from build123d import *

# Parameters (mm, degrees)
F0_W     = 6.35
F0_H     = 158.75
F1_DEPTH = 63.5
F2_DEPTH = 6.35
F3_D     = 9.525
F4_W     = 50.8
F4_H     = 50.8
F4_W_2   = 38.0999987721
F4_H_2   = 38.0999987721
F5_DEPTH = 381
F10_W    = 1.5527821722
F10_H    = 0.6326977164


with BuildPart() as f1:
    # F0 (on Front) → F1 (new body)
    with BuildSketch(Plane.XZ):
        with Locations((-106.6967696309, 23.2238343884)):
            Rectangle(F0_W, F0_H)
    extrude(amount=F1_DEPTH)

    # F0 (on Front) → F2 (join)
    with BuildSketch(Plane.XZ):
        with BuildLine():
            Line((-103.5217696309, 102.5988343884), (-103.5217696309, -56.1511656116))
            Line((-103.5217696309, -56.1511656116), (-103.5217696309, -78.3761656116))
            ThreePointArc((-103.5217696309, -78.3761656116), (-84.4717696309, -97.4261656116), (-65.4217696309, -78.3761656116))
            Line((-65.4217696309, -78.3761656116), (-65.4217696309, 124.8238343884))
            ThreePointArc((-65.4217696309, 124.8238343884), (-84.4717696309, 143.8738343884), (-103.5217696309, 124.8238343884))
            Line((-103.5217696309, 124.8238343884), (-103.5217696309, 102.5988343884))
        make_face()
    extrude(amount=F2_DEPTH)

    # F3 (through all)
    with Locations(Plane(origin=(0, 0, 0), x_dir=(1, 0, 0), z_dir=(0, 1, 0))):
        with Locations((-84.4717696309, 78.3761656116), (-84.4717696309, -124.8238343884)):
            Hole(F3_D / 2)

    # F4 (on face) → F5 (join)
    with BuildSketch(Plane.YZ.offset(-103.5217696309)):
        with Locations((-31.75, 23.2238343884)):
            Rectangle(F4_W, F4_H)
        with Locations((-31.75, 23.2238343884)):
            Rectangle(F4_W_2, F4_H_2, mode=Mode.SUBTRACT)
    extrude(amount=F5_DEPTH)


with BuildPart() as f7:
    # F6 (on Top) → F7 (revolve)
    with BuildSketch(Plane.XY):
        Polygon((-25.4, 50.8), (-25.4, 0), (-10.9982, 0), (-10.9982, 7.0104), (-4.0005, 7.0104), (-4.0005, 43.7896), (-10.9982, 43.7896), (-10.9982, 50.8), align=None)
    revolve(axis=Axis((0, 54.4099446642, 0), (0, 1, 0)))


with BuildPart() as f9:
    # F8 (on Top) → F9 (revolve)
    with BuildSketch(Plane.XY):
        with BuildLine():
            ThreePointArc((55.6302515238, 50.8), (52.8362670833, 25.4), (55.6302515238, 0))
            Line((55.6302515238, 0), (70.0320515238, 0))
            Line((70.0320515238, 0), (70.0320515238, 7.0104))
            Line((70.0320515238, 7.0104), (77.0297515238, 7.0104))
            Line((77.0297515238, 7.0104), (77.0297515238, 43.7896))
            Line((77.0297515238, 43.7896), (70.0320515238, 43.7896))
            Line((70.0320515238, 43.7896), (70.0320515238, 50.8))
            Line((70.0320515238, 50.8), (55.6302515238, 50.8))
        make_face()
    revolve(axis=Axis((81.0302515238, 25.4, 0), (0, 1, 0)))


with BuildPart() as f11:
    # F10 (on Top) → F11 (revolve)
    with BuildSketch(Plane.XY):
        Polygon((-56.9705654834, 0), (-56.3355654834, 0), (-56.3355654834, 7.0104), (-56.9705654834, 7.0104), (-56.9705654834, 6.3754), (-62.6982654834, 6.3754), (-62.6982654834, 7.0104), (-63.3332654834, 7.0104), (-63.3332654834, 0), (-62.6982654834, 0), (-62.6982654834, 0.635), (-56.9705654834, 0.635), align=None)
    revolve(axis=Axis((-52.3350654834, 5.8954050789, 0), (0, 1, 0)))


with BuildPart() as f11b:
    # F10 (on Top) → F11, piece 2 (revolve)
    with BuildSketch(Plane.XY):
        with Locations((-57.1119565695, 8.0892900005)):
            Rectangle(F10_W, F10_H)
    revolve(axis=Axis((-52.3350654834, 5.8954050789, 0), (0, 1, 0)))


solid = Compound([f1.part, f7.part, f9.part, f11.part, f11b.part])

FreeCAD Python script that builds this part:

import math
import FreeCAD as App
import Part
import Sketcher

V = App.Vector
Q = App.Units.Quantity

doc = App.newDocument("Part")
body = doc.addObject("PartDesign::Body", "Body")

# Sketch on XZ plane
sketch1 = body.newObject("Sketcher::SketchObject", "Sketch")
sketch1.AttachmentSupport = (doc.getObject("XZ_Plane"), [""])
sketch1.MapMode = "FlatFace"
sketch1.addGeometry(Part.LineSegment(V(-110, 103, 0), V(-110, -56, 0)), False)
sketch1.addGeometry(Part.LineSegment(V(-110, -56, 0), V(-104, -56, 0)), False)
sketch1.addGeometry(Part.LineSegment(V(-104, -56, 0), V(-104, 103, 0)), False)
sketch1.addGeometry(Part.LineSegment(V(-104, 103, 0), V(-110, 103, 0)), False)
sketch1.addConstraint(Sketcher.Constraint("Coincident", 0, 2, 1, 1))
sketch1.addConstraint(Sketcher.Constraint("Coincident", 1, 2, 2, 1))
sketch1.addConstraint(Sketcher.Constraint("Coincident", 2, 2, 3, 1))
sketch1.addConstraint(Sketcher.Constraint("Coincident", 3, 2, 0, 1))
sketch1.addConstraint(Sketcher.Constraint("Vertical", 0))
sketch1.addConstraint(Sketcher.Constraint("Horizontal", 1))
sketch1.addConstraint(Sketcher.Constraint("Vertical", 2))
sketch1.addConstraint(Sketcher.Constraint("Horizontal", 3))
sketch1.addConstraint(Sketcher.Constraint("DistanceX", 1, 1, 1, 2, Q("0.25 in")))
sketch1.addConstraint(Sketcher.Constraint("DistanceY", 0, 2, 0, 1, Q("6.25 in")))
sketch1.addConstraint(Sketcher.Constraint("DistanceX", 0, 2, -1, 1, Q("109.87177 mm")))
sketch1.addConstraint(Sketcher.Constraint("DistanceY", 0, 2, -1, 1, Q("56.151166 mm")))
pad1 = body.newObject("PartDesign::Pad", "Pad")
pad1.Profile = sketch1
pad1.Length = Q("2.5 in")

# Sketch on XZ plane
sketch2 = body.newObject("Sketcher::SketchObject", "Sketch001")
sketch2.AttachmentSupport = (doc.getObject("XZ_Plane"), [""])
sketch2.MapMode = "FlatFace"
sketch2.addGeometry(Part.ArcOfCircle(Part.Circle(V(-84, -78, 0), V(0, 0, 1), 19), math.radians(180), math.radians(360)), False)
sketch2.addGeometry(Part.LineSegment(V(-65, -78, 0), V(-65, 125, 0)), False)
sketch2.addGeometry(Part.ArcOfCircle(Part.Circle(V(-84, 125, 0), V(0, 0, 1), 19), math.radians(0), math.radians(180)), False)
sketch2.addGeometry(Part.LineSegment(V(-104, 125, 0), V(-104, -78, 0)), False)
sketch2.addConstraint(Sketcher.Constraint("Tangent", 0, 2, 1, 1))
sketch2.addConstraint(Sketcher.Constraint("Tangent", 1, 2, 2, 1))
sketch2.addConstraint(Sketcher.Constraint("Tangent", 2, 2, 3, 1))
sketch2.addConstraint(Sketcher.Constraint("Tangent", 3, 2, 0, 1))
sketch2.addConstraint(Sketcher.Constraint("Vertical", 1))
sketch2.addConstraint(Sketcher.Constraint("Vertical", 3))
sketch2.addConstraint(Sketcher.Constraint("DistanceY", 1, 1, 1, 2, Q("8 in")))
sketch2.addConstraint(Sketcher.Constraint("Radius", 0, Q("0.75 in")))
sketch2.addConstraint(Sketcher.Constraint("DistanceX", 0, 3, -1, 1, Q("84.47177 mm")))
sketch2.addConstraint(Sketcher.Constraint("DistanceY", 0, 3, -1, 1, Q("78.376166 mm")))
pad2 = body.newObject("PartDesign::Pad", "Pad001")
pad2.Profile = sketch2
pad2.Length = Q("0.25 in")

# Sketch on XZ plane
sketch3 = body.newObject("Sketcher::SketchObject", "Sketch002")
sketch3.AttachmentSupport = (doc.getObject("XZ_Plane"), [""])
sketch3.MapMode = "FlatFace"
sketch3.addGeometry(Part.Circle(V(-84.5, -78.4, 0), V(0, 0, 1), 4.8), False)
sketch3.addGeometry(Part.Circle(V(-84.5, 124.8, 0), V(0, 0, 1), 4.8), False)
sketch3.addConstraint(Sketcher.Constraint("Equal", 0, 1))
sketch3.addConstraint(Sketcher.Constraint("Vertical", 0, 3, 1, 3))
sketch3.addConstraint(Sketcher.Constraint("Diameter", 0, Q("0.375 in")))
sketch3.addConstraint(Sketcher.Constraint("DistanceY", 0, 3, 1, 3, Q("8 in")))
sketch3.addConstraint(Sketcher.Constraint("DistanceX", 0, 3, -1, 1, Q("84.47177 mm")))
sketch3.addConstraint(Sketcher.Constraint("DistanceY", 0, 3, -1, 1, Q("78.376166 mm")))
doc.recompute()
hole = body.newObject("PartDesign::Hole", "Hole")
hole.Profile = sketch3
hole.ThreadType = "None"
hole.Diameter = Q("0.375 in")
hole.DepthType = "ThroughAll"
hole.Reversed = True

# Sketch on YZ plane
sketch4 = body.newObject("Sketcher::SketchObject", "Sketch003")
sketch4.AttachmentSupport = (doc.getObject("YZ_Plane"), [""])
sketch4.MapMode = "FlatFace"
sketch4.AttachmentOffset = App.Placement(V(0, 0, -103.52177), App.Rotation())
sketch4.addGeometry(Part.LineSegment(V(-57, 49, 0), V(-57, -2, 0)), False)
sketch4.addGeometry(Part.LineSegment(V(-57, -2, 0), V(-6, -2, 0)), False)
sketch4.addGeometry(Part.LineSegment(V(-6, -2, 0), V(-6, 49, 0)), False)
sketch4.addGeometry(Part.LineSegment(V(-6, 49, 0), V(-57, 49, 0)), False)
sketch4.addGeometry(Part.LineSegment(V(-13, 4, 0), V(-51, 4, 0)), False)
sketch4.addGeometry(Part.LineSegment(V(-51, 4, 0), V(-51, 42, 0)), False)
sketch4.addGeometry(Part.LineSegment(V(-51, 42, 0), V(-13, 42, 0)), False)
sketch4.addGeometry(Part.LineSegment(V(-13, 42, 0), V(-13, 4, 0)), False)
sketch4.addConstraint(Sketcher.Constraint("Coincident", 0, 2, 1, 1))
sketch4.addConstraint(Sketcher.Constraint("Coincident", 1, 2, 2, 1))
sketch4.addConstraint(Sketcher.Constraint("Coincident", 2, 2, 3, 1))
sketch4.addConstraint(Sketcher.Constraint("Coincident", 3, 2, 0, 1))
sketch4.addConstraint(Sketcher.Constraint("Coincident", 4, 2, 5, 1))
sketch4.addConstraint(Sketcher.Constraint("Coincident", 5, 2, 6, 1))
sketch4.addConstraint(Sketcher.Constraint("Coincident", 6, 2, 7, 1))
sketch4.addConstraint(Sketcher.Constraint("Coincident", 7, 2, 4, 1))
sketch4.addConstraint(Sketcher.Constraint("Vertical", 0))
sketch4.addConstraint(Sketcher.Constraint("Horizontal", 1))
sketch4.addConstraint(Sketcher.Constraint("Vertical", 2))
sketch4.addConstraint(Sketcher.Constraint("Horizontal", 3))
sketch4.addConstraint(Sketcher.Constraint("Horizontal", 4))
sketch4.addConstraint(Sketcher.Constraint("Vertical", 5))
sketch4.addConstraint(Sketcher.Constraint("Horizontal", 6))
sketch4.addConstraint(Sketcher.Constraint("Vertical", 7))
sketch4.addConstraint(Sketcher.Constraint("Equal", 3, 0))
sketch4.addConstraint(Sketcher.Constraint("Equal", 6, 5))
sketch4.addConstraint(Sketcher.Constraint("DistanceX", 1, 1, 1, 2, Q("2 in")))
sketch4.addConstraint(Sketcher.Constraint("DistanceX", 4, 2, 4, 1, Q("1.5 in")))
sketch4.addConstraint(Sketcher.Constraint("DistanceX", 4, 2, -1, 1, Q("2 in")))
sketch4.addConstraint(Sketcher.Constraint("DistanceX", 0, 2, -1, 1, Q("2.25 in")))
sketch4.addConstraint(Sketcher.Constraint("DistanceY", 0, 2, 4, 2, Q("0.25 in")))
sketch4.addConstraint(Sketcher.Constraint("DistanceY", 0, 2, -1, 1, Q("2.176166 mm")))
pad3 = body.newObject("PartDesign::Pad", "Pad002")
pad3.Profile = sketch4
pad3.Length = Q("15 in")
body2 = doc.addObject("PartDesign::Body", "Body001")

# Sketch on XY plane
sketch5 = body2.newObject("Sketcher::SketchObject", "Sketch004")
sketch5.AttachmentSupport = (doc.getObject("XY_Plane001"), [""])
sketch5.MapMode = "FlatFace"
sketch5.addGeometry(Part.LineSegment(V(-25, 51, 0), V(-25, 0, 0)), False)
sketch5.addGeometry(Part.LineSegment(V(-25, 0, 0), V(-11, 0, 0)), False)
sketch5.addGeometry(Part.LineSegment(V(-11, 0, 0), V(-11, 7, 0)), False)
sketch5.addGeometry(Part.LineSegment(V(-11, 7, 0), V(-4, 7, 0)), False)
sketch5.addGeometry(Part.LineSegment(V(-4, 7, 0), V(-4, 44, 0)), False)
sketch5.addGeometry(Part.LineSegment(V(-4, 44, 0), V(-11, 44, 0)), False)
sketch5.addGeometry(Part.LineSegment(V(-11, 44, 0), V(-11, 51, 0)), False)
sketch5.addGeometry(Part.LineSegment(V(-11, 51, 0), V(-25, 51, 0)), False)
sketch5.addConstraint(Sketcher.Constraint("Coincident", 0, 2, 1, 1))
sketch5.addConstraint(Sketcher.Constraint("Coincident", 1, 2, 2, 1))
sketch5.addConstraint(Sketcher.Constraint("Coincident", 2, 2, 3, 1))
sketch5.addConstraint(Sketcher.Constraint("Coincident", 3, 2, 4, 1))
sketch5.addConstraint(Sketcher.Constraint("Coincident", 4, 2, 5, 1))
sketch5.addConstraint(Sketcher.Constraint("Coincident", 5, 2, 6, 1))
sketch5.addConstraint(Sketcher.Constraint("Coincident", 6, 2, 7, 1))
sketch5.addConstraint(Sketcher.Constraint("Coincident", 7, 2, 0, 1))
sketch5.addConstraint(Sketcher.Constraint("Vertical", 0))
sketch5.addConstraint(Sketcher.Constraint("Horizontal", 1))
sketch5.addConstraint(Sketcher.Constraint("Vertical", 2))
sketch5.addConstraint(Sketcher.Constraint("Horizontal", 3))
sketch5.addConstraint(Sketcher.Constraint("Vertical", 4))
sketch5.addConstraint(Sketcher.Constraint("Horizontal", 5))
sketch5.addConstraint(Sketcher.Constraint("Vertical", 6))
sketch5.addConstraint(Sketcher.Constraint("Horizontal", 7))
sketch5.addConstraint(Sketcher.Constraint("PointOnObject", 0, 2, -1))
sketch5.addConstraint(Sketcher.Constraint("Vertical", 2, 2, 5, 2))
sketch5.addConstraint(Sketcher.Constraint("Equal", 2, 6))
sketch5.addConstraint(Sketcher.Constraint("DistanceY", 0, 2, 0, 1, Q("2 in")))
sketch5.addConstraint(Sketcher.Constraint("DistanceX", 0, 2, -1, 1, Q("1 in")))
sketch5.addConstraint(Sketcher.Constraint("DistanceX", 1, 1, 1, 2, Q("0.567 in")))
sketch5.addConstraint(Sketcher.Constraint("DistanceY", 2, 1, 2, 2, Q("0.276 in")))
sketch5.addConstraint(Sketcher.Constraint("DistanceX", 3, 1, 3, 2, Q("0.2755 in")))
revolution = body2.newObject("PartDesign::Revolution", "Revolution")
revolution.Profile = sketch5
revolution.ReferenceAxis = (sketch5, ["V_Axis"])
revolution.Angle = 360
body3 = doc.addObject("PartDesign::Body", "Body002")

# Sketch on XY plane
sketch6 = body3.newObject("Sketcher::SketchObject", "Sketch005")
sketch6.AttachmentSupport = (doc.getObject("XY_Plane002"), [""])
sketch6.MapMode = "FlatFace"
sketch6.addGeometry(Part.ArcOfCircle(Part.Circle(V(170, 25, 0), V(0, 0, 1), 117), math.radians(167), math.radians(193)), False)
sketch6.addGeometry(Part.LineSegment(V(56, 0, 0), V(70, 0, 0)), False)
sketch6.addGeometry(Part.LineSegment(V(70, 0, 0), V(70, 7, 0)), False)
sketch6.addGeometry(Part.LineSegment(V(70, 7, 0), V(77, 7, 0)), False)
sketch6.addGeometry(Part.LineSegment(V(77, 7, 0), V(77, 44, 0)), False)
sketch6.addGeometry(Part.LineSegment(V(77, 44, 0), V(70, 44, 0)), False)
sketch6.addGeometry(Part.LineSegment(V(70, 44, 0), V(70, 51, 0)), False)
sketch6.addGeometry(Part.LineSegment(V(70, 51, 0), V(56, 51, 0)), False)
sketch6.addGeometry(Part.LineSegment(V(81, 0, 0), V(81, 51, 0)), True)  # axis
sketch6.addConstraint(Sketcher.Constraint("Coincident", 0, 2, 1, 1))
sketch6.addConstraint(Sketcher.Constraint("Coincident", 1, 2, 2, 1))
sketch6.addConstraint(Sketcher.Constraint("Coincident", 2, 2, 3, 1))
sketch6.addConstraint(Sketcher.Constraint("Coincident", 3, 2, 4, 1))
sketch6.addConstraint(Sketcher.Constraint("Coincident", 4, 2, 5, 1))
sketch6.addConstraint(Sketcher.Constraint("Coincident", 5, 2, 6, 1))
sketch6.addConstraint(Sketcher.Constraint("Coincident", 6, 2, 7, 1))
sketch6.addConstraint(Sketcher.Constraint("Coincident", 7, 2, 0, 1))
sketch6.addConstraint(Sketcher.Constraint("Horizontal", 1))
sketch6.addConstraint(Sketcher.Constraint("Vertical", 2))
sketch6.addConstraint(Sketcher.Constraint("Horizontal", 3))
sketch6.addConstraint(Sketcher.Constraint("Vertical", 4))
sketch6.addConstraint(Sketcher.Constraint("Horizontal", 5))
sketch6.addConstraint(Sketcher.Constraint("Vertical", 6))
sketch6.addConstraint(Sketcher.Constraint("Horizontal", 7))
sketch6.addConstraint(Sketcher.Constraint("Vertical", 8))
sketch6.addConstraint(Sketcher.Constraint("PointOnObject", 0, 2, -1))
sketch6.addConstraint(Sketcher.Constraint("PointOnObject", 8, 1, -1))
sketch6.addConstraint(Sketcher.Constraint("Horizontal", 7, 2, 8, 2))
sketch6.addConstraint(Sketcher.Constraint("Vertical", 2, 2, 5, 2))
sketch6.addConstraint(Sketcher.Constraint("Vertical", 0, 2, 7, 2))
sketch6.addConstraint(Sketcher.Constraint("Equal", 2, 6))
sketch6.addConstraint(Sketcher.Constraint("DistanceY", 8, 1, 8, 2, Q("2 in")))
sketch6.addConstraint(Sketcher.Constraint("DistanceX", 0, 2, 8, 1, Q("1 in")))
sketch6.addConstraint(Sketcher.Constraint("DistanceX", 1, 1, 1, 2, Q("0.567 in")))
sketch6.addConstraint(Sketcher.Constraint("DistanceY", 2, 1, 2, 2, Q("0.276 in")))
sketch6.addConstraint(Sketcher.Constraint("DistanceX", 3, 1, 3, 2, Q("0.2755 in")))
sketch6.addConstraint(Sketcher.Constraint("Radius", 0, Q("116.852181 mm")))
sketch6.addConstraint(Sketcher.Constraint("DistanceX", -1, 1, 0, 2, Q("55.630252 mm")))
revolution2 = body3.newObject("PartDesign::Revolution", "Revolution001")
revolution2.Profile = sketch6
revolution2.ReferenceAxis = (sketch6, ["Axis0"])
revolution2.Angle = 360
body4 = doc.addObject("PartDesign::Body", "Body003")

# Sketch on XY plane
sketch7 = body4.newObject("Sketcher::SketchObject", "Sketch006")
sketch7.AttachmentSupport = (doc.getObject("XY_Plane003"), [""])
sketch7.MapMode = "FlatFace"
sketch7.addGeometry(Part.LineSegment(V(-57, 0, 0), V(-56.3, 0, 0)), False)
sketch7.addGeometry(Part.LineSegment(V(-56.3, 0, 0), V(-56.3, 7, 0)), False)
sketch7.addGeometry(Part.LineSegment(V(-56.3, 7, 0), V(-57, 7, 0)), False)
sketch7.addGeometry(Part.LineSegment(V(-57, 7, 0), V(-57, 6.4, 0)), False)
sketch7.addGeometry(Part.LineSegment(V(-57, 6.4, 0), V(-62.7, 6.4, 0)), False)
sketch7.addGeometry(Part.LineSegment(V(-62.7, 6.4, 0), V(-62.7, 7, 0)), False)
sketch7.addGeometry(Part.LineSegment(V(-62.7, 7, 0), V(-63.3, 7, 0)), False)
sketch7.addGeometry(Part.LineSegment(V(-63.3, 7, 0), V(-63.3, 0, 0)), False)
sketch7.addGeometry(Part.LineSegment(V(-63.3, 0, 0), V(-62.7, 0, 0)), False)
sketch7.addGeometry(Part.LineSegment(V(-62.7, 0, 0), V(-62.7, 0.6, 0)), False)
sketch7.addGeometry(Part.LineSegment(V(-62.7, 0.6, 0), V(-57, 0.6, 0)), False)
sketch7.addGeometry(Part.LineSegment(V(-57, 0.6, 0), V(-57, 0, 0)), False)
sketch7.addGeometry(Part.LineSegment(V(-52.3, 0, 0), V(-52.3, 7, 0)), True)  # axis
sketch7.addConstraint(Sketcher.Constraint("Coincident", 0, 2, 1, 1))
sketch7.addConstraint(Sketcher.Constraint("Coincident", 1, 2, 2, 1))
sketch7.addConstraint(Sketcher.Constraint("Coincident", 2, 2, 3, 1))
sketch7.addConstraint(Sketcher.Constraint("Coincident", 3, 2, 4, 1))
sketch7.addConstraint(Sketcher.Constraint("Coincident", 4, 2, 5, 1))
sketch7.addConstraint(Sketcher.Constraint("Coincident", 5, 2, 6, 1))
sketch7.addConstraint(Sketcher.Constraint("Coincident", 6, 2, 7, 1))
sketch7.addConstraint(Sketcher.Constraint("Coincident", 7, 2, 8, 1))
sketch7.addConstraint(Sketcher.Constraint("Coincident", 8, 2, 9, 1))
sketch7.addConstraint(Sketcher.Constraint("Coincident", 9, 2, 10, 1))
sketch7.addConstraint(Sketcher.Constraint("Coincident", 10, 2, 11, 1))
sketch7.addConstraint(Sketcher.Constraint("Coincident", 11, 2, 0, 1))
sketch7.addConstraint(Sketcher.Constraint("Horizontal", 0))
sketch7.addConstraint(Sketcher.Constraint("Vertical", 1))
sketch7.addConstraint(Sketcher.Constraint("Horizontal", 2))
sketch7.addConstraint(Sketcher.Constraint("Vertical", 3))
sketch7.addConstraint(Sketcher.Constraint("Horizontal", 4))
sketch7.addConstraint(Sketcher.Constraint("Vertical", 5))
sketch7.addConstraint(Sketcher.Constraint("Horizontal", 6))
sketch7.addConstraint(Sketcher.Constraint("Vertical", 7))
sketch7.addConstraint(Sketcher.Constraint("Horizontal", 8))
sketch7.addConstraint(Sketcher.Constraint("Vertical", 9))
sketch7.addConstraint(Sketcher.Constraint("Horizontal", 10))
sketch7.addConstraint(Sketcher.Constraint("Vertical", 11))
sketch7.addConstraint(Sketcher.Constraint("Vertical", 12))
sketch7.addConstraint(Sketcher.Constraint("PointOnObject", 0, 2, -1))
sketch7.addConstraint(Sketcher.Constraint("PointOnObject", 7, 2, -1))
sketch7.addConstraint(Sketcher.Constraint("PointOnObject", 12, 1, -1))
sketch7.addConstraint(Sketcher.Constraint("Horizontal", 2, 2, 5, 2))
sketch7.addConstraint(Sketcher.Constraint("Horizontal", 6, 2, 12, 2))
sketch7.addConstraint(Sketcher.Constraint("Vertical", 5, 2, 8, 2))
sketch7.addConstraint(Sketcher.Constraint("Vertical", 3, 2, 10, 2))
sketch7.addConstraint(Sketcher.Constraint("Equal", 2, 6))
sketch7.addConstraint(Sketcher.Constraint("Equal", 8, 3))
sketch7.addConstraint(Sketcher.Constraint("Equal", 5, 9))
sketch7.addConstraint(Sketcher.Constraint("DistanceX", 0, 1, 0, 2, Q("0.025 in")))
sketch7.addConstraint(Sketcher.Constraint("DistanceY", 1, 1, 1, 2, Q("0.276 in")))
sketch7.addConstraint(Sketcher.Constraint("DistanceX", 4, 2, 4, 1, Q("0.2255 in")))
sketch7.addConstraint(Sketcher.Constraint("DistanceX", 0, 2, 12, 1, Q("0.1575 in")))
sketch7.addConstraint(Sketcher.Constraint("DistanceX", 0, 2, -1, 1, Q("56.335565 mm")))
revolution3 = body4.newObject("PartDesign::Revolution", "Revolution002")
revolution3.Profile = sketch7
revolution3.ReferenceAxis = (sketch7, ["Axis0"])
revolution3.Angle = 360
body5 = doc.addObject("PartDesign::Body", "Body004")

# Sketch on XY plane
sketch8 = body5.newObject("Sketcher::SketchObject", "Sketch007")
sketch8.AttachmentSupport = (doc.getObject("XY_Plane004"), [""])
sketch8.MapMode = "FlatFace"
sketch8.addGeometry(Part.LineSegment(V(-57.9, 8.4, 0), V(-57.9, 7.8, 0)), False)
sketch8.addGeometry(Part.LineSegment(V(-57.9, 7.8, 0), V(-56.3, 7.8, 0)), False)
sketch8.addGeometry(Part.LineSegment(V(-56.3, 7.8, 0), V(-56.3, 8.4, 0)), False)
sketch8.addGeometry(Part.LineSegment(V(-56.3, 8.4, 0), V(-57.9, 8.4, 0)), False)
sketch8.addGeometry(Part.LineSegment(V(-52.3, 7.8, 0), V(-52.3, 8.4, 0)), True)  # axis
sketch8.addConstraint(Sketcher.Constraint("Coincident", 0, 2, 1, 1))
sketch8.addConstraint(Sketcher.Constraint("Coincident", 1, 2, 2, 1))
sketch8.addConstraint(Sketcher.Constraint("Coincident", 2, 2, 3, 1))
sketch8.addConstraint(Sketcher.Constraint("Coincident", 3, 2, 0, 1))
sketch8.addConstraint(Sketcher.Constraint("Vertical", 0))
sketch8.addConstraint(Sketcher.Constraint("Horizontal", 1))
sketch8.addConstraint(Sketcher.Constraint("Vertical", 2))
sketch8.addConstraint(Sketcher.Constraint("Horizontal", 3))
sketch8.addConstraint(Sketcher.Constraint("Vertical", 4))
sketch8.addConstraint(Sketcher.Constraint("Horizontal", 1, 2, 4, 1))
sketch8.addConstraint(Sketcher.Constraint("Horizontal", 3, 2, 4, 2))
sketch8.addConstraint(Sketcher.Constraint("DistanceX", 1, 2, 4, 1, Q("0.1575 in")))
sketch8.addConstraint(Sketcher.Constraint("DistanceX", 1, 1, 1, 2, Q("1.552782 mm")))
sketch8.addConstraint(Sketcher.Constraint("DistanceY", 0, 2, 0, 1, Q("0.632698 mm")))
sketch8.addConstraint(Sketcher.Constraint("DistanceY", -1, 1, 0, 2, Q("7.772941 mm")))
sketch8.addConstraint(Sketcher.Constraint("DistanceX", 0, 2, -1, 1, Q("57.888348 mm")))
revolution4 = body5.newObject("PartDesign::Revolution", "Revolution003")
revolution4.Profile = sketch8
revolution4.ReferenceAxis = (sketch8, ["Axis0"])
revolution4.Angle = 360

doc.recompute()
